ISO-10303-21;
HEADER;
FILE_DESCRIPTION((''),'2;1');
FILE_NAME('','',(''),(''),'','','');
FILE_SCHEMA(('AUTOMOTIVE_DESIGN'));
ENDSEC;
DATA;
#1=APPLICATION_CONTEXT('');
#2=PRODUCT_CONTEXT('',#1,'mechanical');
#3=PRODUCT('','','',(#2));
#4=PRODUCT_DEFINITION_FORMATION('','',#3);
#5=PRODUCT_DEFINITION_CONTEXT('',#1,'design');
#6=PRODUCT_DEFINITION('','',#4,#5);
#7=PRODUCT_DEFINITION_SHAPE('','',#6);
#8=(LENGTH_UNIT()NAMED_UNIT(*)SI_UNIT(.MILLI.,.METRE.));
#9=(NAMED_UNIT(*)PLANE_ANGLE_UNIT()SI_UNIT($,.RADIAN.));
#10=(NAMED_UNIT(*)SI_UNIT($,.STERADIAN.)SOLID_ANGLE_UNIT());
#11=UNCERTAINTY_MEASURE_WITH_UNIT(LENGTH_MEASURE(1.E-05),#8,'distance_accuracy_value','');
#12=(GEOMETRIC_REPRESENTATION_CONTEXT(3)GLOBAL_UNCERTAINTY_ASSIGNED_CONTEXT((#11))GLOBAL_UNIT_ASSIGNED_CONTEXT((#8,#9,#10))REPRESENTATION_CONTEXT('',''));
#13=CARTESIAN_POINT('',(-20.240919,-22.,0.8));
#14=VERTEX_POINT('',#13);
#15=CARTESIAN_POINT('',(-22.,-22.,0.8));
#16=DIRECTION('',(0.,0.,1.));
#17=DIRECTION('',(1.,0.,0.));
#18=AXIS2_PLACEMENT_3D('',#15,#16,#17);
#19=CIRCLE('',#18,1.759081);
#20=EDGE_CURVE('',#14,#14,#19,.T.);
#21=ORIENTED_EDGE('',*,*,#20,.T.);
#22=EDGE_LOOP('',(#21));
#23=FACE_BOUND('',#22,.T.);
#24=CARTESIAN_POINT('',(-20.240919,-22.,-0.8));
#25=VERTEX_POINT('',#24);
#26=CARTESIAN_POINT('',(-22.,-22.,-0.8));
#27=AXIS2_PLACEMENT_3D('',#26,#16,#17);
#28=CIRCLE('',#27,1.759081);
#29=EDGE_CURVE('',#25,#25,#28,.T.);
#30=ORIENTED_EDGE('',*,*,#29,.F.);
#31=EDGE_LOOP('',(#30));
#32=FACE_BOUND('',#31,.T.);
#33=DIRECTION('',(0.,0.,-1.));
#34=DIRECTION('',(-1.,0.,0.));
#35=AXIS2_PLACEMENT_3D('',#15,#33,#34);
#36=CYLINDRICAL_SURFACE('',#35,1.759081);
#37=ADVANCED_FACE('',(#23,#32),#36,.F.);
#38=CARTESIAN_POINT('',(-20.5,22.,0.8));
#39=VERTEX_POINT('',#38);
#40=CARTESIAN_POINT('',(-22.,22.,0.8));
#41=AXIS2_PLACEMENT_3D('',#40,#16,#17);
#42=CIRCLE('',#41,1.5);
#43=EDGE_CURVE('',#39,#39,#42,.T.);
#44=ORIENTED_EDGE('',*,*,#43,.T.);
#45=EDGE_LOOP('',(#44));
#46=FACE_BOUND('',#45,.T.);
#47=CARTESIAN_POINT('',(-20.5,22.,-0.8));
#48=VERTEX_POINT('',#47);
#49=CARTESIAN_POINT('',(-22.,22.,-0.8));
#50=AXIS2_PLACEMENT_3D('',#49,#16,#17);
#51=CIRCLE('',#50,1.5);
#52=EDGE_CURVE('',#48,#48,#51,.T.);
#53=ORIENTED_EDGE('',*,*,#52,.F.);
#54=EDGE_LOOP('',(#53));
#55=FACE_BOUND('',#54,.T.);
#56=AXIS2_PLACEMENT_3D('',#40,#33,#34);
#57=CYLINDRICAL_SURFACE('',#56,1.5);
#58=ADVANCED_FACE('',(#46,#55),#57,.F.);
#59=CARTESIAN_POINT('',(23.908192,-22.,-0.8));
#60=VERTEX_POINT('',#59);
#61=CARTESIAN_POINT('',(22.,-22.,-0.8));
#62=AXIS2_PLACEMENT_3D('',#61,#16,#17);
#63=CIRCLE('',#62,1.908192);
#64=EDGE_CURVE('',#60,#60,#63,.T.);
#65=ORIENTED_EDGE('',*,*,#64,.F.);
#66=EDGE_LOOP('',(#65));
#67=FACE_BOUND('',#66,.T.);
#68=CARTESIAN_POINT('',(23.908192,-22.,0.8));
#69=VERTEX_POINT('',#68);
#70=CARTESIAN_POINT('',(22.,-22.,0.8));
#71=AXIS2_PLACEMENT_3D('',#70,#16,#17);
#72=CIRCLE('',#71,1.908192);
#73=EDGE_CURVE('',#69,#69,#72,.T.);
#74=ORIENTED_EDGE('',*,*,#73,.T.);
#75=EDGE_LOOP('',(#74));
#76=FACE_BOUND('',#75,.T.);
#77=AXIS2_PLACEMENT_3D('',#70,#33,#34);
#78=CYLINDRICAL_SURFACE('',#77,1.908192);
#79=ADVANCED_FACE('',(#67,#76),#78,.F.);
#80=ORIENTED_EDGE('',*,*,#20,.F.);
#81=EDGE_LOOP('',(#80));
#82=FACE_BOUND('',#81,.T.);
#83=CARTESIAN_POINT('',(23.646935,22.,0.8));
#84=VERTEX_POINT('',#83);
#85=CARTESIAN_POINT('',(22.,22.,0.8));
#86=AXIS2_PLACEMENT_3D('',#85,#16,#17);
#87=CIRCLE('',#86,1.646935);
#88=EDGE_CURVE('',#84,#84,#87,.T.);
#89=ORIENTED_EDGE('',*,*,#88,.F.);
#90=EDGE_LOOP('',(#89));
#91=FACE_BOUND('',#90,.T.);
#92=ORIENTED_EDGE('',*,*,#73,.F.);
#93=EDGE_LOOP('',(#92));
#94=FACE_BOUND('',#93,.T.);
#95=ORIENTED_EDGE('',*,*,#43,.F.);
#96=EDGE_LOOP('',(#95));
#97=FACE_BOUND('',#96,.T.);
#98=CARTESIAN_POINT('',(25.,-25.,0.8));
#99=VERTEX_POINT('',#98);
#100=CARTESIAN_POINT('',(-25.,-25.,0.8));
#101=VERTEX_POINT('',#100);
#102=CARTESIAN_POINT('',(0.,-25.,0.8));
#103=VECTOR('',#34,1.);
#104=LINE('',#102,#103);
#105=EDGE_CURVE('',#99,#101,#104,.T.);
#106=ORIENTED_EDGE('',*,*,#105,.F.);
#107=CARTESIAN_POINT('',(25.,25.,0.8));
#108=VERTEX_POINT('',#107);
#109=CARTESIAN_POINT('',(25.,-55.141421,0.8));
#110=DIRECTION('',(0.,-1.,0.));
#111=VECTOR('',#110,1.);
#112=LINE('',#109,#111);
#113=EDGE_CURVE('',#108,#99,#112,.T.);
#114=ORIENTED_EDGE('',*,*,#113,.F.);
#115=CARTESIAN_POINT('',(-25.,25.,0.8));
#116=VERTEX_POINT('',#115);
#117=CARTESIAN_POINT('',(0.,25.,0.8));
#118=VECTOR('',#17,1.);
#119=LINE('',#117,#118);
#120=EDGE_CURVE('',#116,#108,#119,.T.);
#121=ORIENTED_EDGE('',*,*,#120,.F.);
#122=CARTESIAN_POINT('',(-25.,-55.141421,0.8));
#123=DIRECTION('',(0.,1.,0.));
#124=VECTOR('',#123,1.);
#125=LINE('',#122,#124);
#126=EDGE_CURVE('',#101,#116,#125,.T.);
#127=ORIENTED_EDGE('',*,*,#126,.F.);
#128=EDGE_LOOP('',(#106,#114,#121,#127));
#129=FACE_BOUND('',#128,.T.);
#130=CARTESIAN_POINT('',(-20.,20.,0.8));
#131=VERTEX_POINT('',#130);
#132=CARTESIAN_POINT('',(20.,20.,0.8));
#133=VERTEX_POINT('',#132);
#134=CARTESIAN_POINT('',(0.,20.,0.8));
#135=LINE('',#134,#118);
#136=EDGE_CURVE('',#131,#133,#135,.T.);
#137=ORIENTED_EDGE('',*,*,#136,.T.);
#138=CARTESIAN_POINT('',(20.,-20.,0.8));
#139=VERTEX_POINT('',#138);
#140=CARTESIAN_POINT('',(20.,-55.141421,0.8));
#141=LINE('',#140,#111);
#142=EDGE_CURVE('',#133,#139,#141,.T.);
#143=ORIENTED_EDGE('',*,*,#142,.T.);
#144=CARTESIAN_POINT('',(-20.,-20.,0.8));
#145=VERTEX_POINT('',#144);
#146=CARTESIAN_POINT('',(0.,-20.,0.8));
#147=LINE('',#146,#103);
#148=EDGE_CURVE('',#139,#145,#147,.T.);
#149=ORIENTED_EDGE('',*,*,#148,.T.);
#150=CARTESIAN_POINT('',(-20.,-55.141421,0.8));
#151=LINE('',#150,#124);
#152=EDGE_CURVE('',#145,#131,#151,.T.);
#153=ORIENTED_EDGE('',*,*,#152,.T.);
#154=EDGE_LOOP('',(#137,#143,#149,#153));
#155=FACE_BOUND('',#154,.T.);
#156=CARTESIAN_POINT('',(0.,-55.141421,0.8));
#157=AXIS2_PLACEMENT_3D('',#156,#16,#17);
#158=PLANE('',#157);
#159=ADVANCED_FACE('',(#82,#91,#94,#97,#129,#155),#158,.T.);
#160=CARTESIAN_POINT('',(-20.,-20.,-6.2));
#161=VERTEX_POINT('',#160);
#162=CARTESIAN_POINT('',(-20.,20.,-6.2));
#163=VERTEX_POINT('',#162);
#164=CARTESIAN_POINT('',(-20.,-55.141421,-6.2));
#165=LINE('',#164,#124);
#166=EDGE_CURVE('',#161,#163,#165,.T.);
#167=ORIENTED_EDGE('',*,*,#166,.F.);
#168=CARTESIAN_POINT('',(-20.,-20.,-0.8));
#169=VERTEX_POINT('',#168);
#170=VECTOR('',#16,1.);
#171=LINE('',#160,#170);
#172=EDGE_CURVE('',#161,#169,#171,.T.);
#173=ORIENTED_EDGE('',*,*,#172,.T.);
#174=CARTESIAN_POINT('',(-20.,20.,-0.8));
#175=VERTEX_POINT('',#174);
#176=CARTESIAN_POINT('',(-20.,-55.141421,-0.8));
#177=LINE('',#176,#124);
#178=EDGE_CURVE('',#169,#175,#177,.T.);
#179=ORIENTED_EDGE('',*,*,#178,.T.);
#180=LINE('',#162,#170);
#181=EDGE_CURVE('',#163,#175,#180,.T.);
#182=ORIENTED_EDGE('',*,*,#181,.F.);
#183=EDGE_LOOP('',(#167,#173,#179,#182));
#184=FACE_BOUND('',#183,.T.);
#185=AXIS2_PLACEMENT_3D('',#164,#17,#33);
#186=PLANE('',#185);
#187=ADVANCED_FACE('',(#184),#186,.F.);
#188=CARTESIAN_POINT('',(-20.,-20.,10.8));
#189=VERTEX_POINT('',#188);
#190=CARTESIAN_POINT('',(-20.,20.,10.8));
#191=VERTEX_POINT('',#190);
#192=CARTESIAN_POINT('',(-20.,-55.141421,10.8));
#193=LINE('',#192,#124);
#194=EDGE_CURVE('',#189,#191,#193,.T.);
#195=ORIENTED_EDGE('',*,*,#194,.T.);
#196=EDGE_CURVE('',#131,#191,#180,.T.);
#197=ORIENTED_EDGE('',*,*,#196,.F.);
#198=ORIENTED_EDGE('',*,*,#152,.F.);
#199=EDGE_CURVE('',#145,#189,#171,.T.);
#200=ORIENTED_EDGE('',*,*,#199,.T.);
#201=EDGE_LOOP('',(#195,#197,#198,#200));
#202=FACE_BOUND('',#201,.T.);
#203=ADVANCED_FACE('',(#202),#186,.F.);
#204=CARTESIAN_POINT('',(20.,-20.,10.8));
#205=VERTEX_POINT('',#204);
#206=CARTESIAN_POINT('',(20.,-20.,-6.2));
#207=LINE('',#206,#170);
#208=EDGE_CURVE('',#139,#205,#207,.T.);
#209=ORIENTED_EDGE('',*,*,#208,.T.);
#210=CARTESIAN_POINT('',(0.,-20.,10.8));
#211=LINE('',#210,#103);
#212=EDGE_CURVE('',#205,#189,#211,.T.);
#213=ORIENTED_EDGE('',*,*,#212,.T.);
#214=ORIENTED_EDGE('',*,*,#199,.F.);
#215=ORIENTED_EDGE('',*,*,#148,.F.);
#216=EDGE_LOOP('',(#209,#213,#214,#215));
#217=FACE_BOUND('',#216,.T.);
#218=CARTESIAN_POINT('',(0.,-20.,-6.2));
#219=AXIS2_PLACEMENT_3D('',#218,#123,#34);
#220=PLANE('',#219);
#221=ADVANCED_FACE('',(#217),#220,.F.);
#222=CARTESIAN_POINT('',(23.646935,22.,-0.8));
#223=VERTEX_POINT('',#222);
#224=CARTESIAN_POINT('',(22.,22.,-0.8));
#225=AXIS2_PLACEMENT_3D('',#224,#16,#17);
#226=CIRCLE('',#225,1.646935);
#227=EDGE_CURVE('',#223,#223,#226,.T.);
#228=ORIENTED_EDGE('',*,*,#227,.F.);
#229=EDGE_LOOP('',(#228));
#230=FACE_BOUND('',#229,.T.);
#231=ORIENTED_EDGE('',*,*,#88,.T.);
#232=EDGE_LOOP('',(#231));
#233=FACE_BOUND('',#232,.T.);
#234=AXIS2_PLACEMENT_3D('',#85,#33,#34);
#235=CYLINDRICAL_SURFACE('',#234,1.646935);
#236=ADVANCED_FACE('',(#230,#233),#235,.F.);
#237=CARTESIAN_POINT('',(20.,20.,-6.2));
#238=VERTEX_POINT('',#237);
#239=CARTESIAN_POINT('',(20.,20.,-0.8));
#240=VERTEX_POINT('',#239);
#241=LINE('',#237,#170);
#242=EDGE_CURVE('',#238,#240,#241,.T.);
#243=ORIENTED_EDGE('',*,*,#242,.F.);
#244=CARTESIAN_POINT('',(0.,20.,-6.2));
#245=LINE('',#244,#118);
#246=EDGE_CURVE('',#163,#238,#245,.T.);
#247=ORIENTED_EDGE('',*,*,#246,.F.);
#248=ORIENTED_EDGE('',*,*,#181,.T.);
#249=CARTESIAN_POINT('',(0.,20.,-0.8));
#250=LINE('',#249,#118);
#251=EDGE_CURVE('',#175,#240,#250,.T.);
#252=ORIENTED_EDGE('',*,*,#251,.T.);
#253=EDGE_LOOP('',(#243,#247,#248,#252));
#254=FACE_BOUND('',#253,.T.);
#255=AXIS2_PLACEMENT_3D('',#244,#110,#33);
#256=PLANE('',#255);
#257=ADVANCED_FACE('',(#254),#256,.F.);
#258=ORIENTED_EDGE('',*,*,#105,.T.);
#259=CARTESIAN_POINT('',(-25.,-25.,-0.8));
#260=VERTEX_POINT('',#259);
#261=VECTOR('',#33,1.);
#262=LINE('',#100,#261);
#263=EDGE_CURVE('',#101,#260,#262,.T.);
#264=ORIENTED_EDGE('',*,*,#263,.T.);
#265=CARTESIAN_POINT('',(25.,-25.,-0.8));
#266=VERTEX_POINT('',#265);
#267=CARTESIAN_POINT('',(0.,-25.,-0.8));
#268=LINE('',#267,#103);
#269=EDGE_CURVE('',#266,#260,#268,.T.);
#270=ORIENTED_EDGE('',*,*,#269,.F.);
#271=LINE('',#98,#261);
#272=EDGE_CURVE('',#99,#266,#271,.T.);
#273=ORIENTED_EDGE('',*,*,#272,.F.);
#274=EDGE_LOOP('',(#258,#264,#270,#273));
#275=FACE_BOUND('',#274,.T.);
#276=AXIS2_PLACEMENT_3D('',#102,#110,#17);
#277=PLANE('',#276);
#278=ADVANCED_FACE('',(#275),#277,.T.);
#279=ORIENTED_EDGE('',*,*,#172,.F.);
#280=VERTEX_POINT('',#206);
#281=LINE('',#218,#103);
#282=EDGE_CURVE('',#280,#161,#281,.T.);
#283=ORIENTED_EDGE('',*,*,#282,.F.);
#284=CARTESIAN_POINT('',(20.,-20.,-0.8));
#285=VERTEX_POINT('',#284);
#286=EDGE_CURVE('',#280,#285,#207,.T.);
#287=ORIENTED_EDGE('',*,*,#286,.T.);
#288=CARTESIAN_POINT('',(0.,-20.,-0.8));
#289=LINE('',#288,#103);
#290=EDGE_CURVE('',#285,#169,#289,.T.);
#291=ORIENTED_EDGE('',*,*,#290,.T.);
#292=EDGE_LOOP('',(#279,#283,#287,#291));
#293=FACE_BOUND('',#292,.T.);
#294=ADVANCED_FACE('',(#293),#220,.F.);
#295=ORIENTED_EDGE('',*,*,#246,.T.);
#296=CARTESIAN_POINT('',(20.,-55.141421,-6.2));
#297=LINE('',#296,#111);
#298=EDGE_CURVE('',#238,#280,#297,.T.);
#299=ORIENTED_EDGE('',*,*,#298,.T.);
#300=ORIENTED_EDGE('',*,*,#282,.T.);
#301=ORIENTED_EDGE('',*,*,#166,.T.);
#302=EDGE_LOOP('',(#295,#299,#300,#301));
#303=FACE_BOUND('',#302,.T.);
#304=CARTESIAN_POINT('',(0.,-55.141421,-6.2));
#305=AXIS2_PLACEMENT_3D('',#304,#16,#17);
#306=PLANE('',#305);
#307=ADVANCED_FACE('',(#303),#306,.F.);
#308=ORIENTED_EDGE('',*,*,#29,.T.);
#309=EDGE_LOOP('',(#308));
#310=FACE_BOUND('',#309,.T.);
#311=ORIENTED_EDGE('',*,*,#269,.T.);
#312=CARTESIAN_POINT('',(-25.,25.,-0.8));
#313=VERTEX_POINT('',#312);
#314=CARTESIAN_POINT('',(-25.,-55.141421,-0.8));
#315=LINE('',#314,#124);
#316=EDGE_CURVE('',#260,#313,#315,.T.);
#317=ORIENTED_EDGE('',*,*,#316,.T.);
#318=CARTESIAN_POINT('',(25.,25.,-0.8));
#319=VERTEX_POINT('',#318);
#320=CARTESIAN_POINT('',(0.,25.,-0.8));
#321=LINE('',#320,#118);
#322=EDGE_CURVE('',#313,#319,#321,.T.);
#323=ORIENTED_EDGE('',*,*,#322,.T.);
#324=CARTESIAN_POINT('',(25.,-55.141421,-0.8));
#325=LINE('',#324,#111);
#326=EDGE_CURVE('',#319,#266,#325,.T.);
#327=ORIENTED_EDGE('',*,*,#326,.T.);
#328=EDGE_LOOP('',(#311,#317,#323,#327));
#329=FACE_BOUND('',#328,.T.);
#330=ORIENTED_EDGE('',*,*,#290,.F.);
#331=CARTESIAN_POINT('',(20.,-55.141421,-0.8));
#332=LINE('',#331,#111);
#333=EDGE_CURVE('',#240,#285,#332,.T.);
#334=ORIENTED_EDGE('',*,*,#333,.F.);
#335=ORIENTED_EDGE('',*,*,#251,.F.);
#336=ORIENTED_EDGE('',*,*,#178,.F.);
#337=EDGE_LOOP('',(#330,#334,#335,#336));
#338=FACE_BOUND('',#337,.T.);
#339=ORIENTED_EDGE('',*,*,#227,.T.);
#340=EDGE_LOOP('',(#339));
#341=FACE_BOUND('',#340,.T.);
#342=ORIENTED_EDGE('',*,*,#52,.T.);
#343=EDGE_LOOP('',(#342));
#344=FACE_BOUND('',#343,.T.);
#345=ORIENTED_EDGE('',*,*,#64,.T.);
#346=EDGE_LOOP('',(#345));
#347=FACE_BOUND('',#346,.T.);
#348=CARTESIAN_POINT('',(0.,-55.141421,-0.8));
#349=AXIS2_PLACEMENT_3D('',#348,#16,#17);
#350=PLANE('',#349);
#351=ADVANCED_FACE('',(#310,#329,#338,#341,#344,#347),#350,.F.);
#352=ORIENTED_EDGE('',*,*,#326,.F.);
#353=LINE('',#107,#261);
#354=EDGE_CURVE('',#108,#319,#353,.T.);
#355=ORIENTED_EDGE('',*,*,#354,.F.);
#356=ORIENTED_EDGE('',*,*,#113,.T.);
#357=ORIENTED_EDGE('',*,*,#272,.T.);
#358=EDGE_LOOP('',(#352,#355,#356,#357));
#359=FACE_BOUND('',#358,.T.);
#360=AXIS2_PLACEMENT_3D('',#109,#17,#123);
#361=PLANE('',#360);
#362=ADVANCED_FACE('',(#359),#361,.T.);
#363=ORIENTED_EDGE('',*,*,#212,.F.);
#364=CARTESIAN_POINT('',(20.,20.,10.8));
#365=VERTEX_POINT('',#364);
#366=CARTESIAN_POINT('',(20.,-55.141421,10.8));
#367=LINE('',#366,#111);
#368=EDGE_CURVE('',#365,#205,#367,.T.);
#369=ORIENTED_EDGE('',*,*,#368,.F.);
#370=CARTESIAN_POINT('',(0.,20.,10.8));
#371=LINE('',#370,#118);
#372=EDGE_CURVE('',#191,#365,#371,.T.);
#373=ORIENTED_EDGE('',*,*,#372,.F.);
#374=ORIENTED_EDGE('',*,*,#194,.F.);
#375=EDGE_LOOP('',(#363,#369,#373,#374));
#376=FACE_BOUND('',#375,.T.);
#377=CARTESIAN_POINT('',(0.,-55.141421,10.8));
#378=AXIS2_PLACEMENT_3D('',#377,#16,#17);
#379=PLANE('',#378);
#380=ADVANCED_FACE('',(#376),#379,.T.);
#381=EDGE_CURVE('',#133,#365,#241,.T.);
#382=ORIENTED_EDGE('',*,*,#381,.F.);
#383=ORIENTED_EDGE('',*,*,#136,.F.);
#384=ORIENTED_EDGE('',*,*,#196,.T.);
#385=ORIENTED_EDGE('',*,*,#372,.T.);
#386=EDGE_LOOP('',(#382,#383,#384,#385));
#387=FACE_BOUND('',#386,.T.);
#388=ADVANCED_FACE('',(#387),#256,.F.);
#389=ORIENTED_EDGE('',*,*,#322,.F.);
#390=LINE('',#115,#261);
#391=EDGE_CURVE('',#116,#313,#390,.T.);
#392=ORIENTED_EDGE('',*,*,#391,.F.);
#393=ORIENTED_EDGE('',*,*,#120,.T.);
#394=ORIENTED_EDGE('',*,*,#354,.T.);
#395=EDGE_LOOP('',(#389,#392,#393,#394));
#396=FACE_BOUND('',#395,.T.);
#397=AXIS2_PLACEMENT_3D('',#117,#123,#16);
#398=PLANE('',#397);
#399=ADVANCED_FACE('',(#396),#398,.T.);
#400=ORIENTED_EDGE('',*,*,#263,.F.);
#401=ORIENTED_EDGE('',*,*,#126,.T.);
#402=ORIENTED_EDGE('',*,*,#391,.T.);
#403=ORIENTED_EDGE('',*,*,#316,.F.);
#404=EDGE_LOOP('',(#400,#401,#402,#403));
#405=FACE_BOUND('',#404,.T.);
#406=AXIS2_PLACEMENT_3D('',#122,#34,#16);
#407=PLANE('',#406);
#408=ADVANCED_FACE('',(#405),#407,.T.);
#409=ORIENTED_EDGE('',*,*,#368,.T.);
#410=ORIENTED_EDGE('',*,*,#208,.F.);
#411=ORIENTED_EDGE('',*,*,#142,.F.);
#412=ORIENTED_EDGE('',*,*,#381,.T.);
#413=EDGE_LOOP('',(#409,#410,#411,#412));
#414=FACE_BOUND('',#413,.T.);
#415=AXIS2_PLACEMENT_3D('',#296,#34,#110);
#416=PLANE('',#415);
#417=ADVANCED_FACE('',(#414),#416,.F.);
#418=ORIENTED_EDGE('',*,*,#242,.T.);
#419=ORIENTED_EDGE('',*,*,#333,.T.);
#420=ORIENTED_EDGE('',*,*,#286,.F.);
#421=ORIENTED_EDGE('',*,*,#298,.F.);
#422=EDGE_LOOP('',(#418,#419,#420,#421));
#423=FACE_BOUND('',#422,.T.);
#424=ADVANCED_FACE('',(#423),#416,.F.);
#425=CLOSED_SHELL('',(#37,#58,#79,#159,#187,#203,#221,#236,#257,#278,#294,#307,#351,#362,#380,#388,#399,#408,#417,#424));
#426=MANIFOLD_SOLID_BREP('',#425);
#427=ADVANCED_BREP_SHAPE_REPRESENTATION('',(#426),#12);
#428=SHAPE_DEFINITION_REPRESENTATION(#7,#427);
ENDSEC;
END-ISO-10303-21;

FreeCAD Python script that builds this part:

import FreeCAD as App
import Part
import Sketcher

V = App.Vector
Q = App.Units.Quantity

doc = App.newDocument("Part")
body = doc.addObject("PartDesign::Body", "Body")

sketch1 = doc.addObject("Sketcher::SketchObject", "Sketch")
body.addObject(sketch1)
sketch1.AttachmentSupport = (doc.XY_Plane, [""])
sketch1.MapMode = "FlatFace"
sketch1.addGeometry([
    Part.LineSegment(V(-25, 25, 0), V(-25, -25, 0)),
    Part.LineSegment(V(-25, -25, 0), V(25, -25, 0)),
    Part.LineSegment(V(25, -25, 0), V(25, 25, 0)),
    Part.LineSegment(V(25, 25, 0), V(-25, 25, 0)),
    Part.Circle(V(-22, -22, 0), V(0, 0, 1), 1.8),
    Part.Circle(V(22, -22, 0), V(0, 0, 1), 1.9),
    Part.Circle(V(-22, 22, 0), V(0, 0, 1), 1.5),
    Part.Circle(V(22, 22, 0), V(0, 0, 1), 1.6),
], False)
sketch1.addConstraint([
    Sketcher.Constraint("Coincident", 0, 2, 1, 1),
    Sketcher.Constraint("Coincident", 1, 2, 2, 1),
    Sketcher.Constraint("Coincident", 2, 2, 3, 1),
    Sketcher.Constraint("Coincident", 3, 2, 0, 1),
    Sketcher.Constraint("Vertical", 0),
    Sketcher.Constraint("Horizontal", 1),
    Sketcher.Constraint("Vertical", 2),
    Sketcher.Constraint("Horizontal", 3),
    Sketcher.Constraint("Symmetric", 5, 3, 6, 3, -1, 1),
    Sketcher.Constraint("Symmetric", 4, 3, 7, 3, -1, 1),
    Sketcher.Constraint("Symmetric", 0, 2, 2, 2, -1, 1),
    Sketcher.Constraint("Symmetric", 4, 3, 5, 3, -2),
    Sketcher.Constraint("Equal", 3, 0),
    Sketcher.Constraint("Diameter", 6, Q("3 mm")),
    Sketcher.Constraint("DistanceX", 1, 1, 1, 2, Q("50 mm")),
    Sketcher.Constraint("DistanceX", 4, 3, -1, 1, Q("22 mm")),
    Sketcher.Constraint("DistanceY", 4, 3, -1, 1, Q("22 mm")),
    Sketcher.Constraint("Diameter", 4, Q("3.518161 mm")),
    Sketcher.Constraint("Diameter", 7, Q("3.29387 mm")),
    Sketcher.Constraint("Diameter", 5, Q("3.816385 mm")),
])
pad1 = doc.addObject("PartDesign::Pad", "Pad")
body.addObject(pad1)
pad1.Profile = sketch1
pad1.Length = 1.6
pad1.Midplane = True

sketch2 = doc.addObject("Sketcher::SketchObject", "Sketch001")
body.addObject(sketch2)
sketch2.AttachmentSupport = (doc.XY_Plane, [""])
sketch2.MapMode = "FlatFace"
sketch2.AttachmentOffset = App.Placement(V(0, 0, 0.8), App.Rotation())
sketch2.addGeometry([
    Part.LineSegment(V(-20, -20, 0), V(20, -20, 0)),
    Part.LineSegment(V(20, -20, 0), V(20, 20, 0)),
    Part.LineSegment(V(20, 20, 0), V(-20, 20, 0)),
    Part.LineSegment(V(-20, 20, 0), V(-20, -20, 0)),
], False)
sketch2.addConstraint([
    Sketcher.Constraint("Coincident", 0, 2, 1, 1),
    Sketcher.Constraint("Coincident", 1, 2, 2, 1),
    Sketcher.Constraint("Coincident", 2, 2, 3, 1),
    Sketcher.Constraint("Coincident", 3, 2, 0, 1),
    Sketcher.Constraint("Horizontal", 0),
    Sketcher.Constraint("Vertical", 1),
    Sketcher.Constraint("Horizontal", 2),
    Sketcher.Constraint("Vertical", 3),
    Sketcher.Constraint("Symmetric", 0, 2, 2, 2, -1, 1),
    Sketcher.Constraint("Equal", 2, 1),
    Sketcher.Constraint("DistanceX", 0, 1, 0, 2, Q("40 mm")),
])
pad2 = doc.addObject("PartDesign::Pad", "Pad001")
body.addObject(pad2)
pad2.Profile = sketch2
pad2.Type = "TwoLengths"
pad2.Length = 10
pad2.Length2 = 7

doc.recompute()
